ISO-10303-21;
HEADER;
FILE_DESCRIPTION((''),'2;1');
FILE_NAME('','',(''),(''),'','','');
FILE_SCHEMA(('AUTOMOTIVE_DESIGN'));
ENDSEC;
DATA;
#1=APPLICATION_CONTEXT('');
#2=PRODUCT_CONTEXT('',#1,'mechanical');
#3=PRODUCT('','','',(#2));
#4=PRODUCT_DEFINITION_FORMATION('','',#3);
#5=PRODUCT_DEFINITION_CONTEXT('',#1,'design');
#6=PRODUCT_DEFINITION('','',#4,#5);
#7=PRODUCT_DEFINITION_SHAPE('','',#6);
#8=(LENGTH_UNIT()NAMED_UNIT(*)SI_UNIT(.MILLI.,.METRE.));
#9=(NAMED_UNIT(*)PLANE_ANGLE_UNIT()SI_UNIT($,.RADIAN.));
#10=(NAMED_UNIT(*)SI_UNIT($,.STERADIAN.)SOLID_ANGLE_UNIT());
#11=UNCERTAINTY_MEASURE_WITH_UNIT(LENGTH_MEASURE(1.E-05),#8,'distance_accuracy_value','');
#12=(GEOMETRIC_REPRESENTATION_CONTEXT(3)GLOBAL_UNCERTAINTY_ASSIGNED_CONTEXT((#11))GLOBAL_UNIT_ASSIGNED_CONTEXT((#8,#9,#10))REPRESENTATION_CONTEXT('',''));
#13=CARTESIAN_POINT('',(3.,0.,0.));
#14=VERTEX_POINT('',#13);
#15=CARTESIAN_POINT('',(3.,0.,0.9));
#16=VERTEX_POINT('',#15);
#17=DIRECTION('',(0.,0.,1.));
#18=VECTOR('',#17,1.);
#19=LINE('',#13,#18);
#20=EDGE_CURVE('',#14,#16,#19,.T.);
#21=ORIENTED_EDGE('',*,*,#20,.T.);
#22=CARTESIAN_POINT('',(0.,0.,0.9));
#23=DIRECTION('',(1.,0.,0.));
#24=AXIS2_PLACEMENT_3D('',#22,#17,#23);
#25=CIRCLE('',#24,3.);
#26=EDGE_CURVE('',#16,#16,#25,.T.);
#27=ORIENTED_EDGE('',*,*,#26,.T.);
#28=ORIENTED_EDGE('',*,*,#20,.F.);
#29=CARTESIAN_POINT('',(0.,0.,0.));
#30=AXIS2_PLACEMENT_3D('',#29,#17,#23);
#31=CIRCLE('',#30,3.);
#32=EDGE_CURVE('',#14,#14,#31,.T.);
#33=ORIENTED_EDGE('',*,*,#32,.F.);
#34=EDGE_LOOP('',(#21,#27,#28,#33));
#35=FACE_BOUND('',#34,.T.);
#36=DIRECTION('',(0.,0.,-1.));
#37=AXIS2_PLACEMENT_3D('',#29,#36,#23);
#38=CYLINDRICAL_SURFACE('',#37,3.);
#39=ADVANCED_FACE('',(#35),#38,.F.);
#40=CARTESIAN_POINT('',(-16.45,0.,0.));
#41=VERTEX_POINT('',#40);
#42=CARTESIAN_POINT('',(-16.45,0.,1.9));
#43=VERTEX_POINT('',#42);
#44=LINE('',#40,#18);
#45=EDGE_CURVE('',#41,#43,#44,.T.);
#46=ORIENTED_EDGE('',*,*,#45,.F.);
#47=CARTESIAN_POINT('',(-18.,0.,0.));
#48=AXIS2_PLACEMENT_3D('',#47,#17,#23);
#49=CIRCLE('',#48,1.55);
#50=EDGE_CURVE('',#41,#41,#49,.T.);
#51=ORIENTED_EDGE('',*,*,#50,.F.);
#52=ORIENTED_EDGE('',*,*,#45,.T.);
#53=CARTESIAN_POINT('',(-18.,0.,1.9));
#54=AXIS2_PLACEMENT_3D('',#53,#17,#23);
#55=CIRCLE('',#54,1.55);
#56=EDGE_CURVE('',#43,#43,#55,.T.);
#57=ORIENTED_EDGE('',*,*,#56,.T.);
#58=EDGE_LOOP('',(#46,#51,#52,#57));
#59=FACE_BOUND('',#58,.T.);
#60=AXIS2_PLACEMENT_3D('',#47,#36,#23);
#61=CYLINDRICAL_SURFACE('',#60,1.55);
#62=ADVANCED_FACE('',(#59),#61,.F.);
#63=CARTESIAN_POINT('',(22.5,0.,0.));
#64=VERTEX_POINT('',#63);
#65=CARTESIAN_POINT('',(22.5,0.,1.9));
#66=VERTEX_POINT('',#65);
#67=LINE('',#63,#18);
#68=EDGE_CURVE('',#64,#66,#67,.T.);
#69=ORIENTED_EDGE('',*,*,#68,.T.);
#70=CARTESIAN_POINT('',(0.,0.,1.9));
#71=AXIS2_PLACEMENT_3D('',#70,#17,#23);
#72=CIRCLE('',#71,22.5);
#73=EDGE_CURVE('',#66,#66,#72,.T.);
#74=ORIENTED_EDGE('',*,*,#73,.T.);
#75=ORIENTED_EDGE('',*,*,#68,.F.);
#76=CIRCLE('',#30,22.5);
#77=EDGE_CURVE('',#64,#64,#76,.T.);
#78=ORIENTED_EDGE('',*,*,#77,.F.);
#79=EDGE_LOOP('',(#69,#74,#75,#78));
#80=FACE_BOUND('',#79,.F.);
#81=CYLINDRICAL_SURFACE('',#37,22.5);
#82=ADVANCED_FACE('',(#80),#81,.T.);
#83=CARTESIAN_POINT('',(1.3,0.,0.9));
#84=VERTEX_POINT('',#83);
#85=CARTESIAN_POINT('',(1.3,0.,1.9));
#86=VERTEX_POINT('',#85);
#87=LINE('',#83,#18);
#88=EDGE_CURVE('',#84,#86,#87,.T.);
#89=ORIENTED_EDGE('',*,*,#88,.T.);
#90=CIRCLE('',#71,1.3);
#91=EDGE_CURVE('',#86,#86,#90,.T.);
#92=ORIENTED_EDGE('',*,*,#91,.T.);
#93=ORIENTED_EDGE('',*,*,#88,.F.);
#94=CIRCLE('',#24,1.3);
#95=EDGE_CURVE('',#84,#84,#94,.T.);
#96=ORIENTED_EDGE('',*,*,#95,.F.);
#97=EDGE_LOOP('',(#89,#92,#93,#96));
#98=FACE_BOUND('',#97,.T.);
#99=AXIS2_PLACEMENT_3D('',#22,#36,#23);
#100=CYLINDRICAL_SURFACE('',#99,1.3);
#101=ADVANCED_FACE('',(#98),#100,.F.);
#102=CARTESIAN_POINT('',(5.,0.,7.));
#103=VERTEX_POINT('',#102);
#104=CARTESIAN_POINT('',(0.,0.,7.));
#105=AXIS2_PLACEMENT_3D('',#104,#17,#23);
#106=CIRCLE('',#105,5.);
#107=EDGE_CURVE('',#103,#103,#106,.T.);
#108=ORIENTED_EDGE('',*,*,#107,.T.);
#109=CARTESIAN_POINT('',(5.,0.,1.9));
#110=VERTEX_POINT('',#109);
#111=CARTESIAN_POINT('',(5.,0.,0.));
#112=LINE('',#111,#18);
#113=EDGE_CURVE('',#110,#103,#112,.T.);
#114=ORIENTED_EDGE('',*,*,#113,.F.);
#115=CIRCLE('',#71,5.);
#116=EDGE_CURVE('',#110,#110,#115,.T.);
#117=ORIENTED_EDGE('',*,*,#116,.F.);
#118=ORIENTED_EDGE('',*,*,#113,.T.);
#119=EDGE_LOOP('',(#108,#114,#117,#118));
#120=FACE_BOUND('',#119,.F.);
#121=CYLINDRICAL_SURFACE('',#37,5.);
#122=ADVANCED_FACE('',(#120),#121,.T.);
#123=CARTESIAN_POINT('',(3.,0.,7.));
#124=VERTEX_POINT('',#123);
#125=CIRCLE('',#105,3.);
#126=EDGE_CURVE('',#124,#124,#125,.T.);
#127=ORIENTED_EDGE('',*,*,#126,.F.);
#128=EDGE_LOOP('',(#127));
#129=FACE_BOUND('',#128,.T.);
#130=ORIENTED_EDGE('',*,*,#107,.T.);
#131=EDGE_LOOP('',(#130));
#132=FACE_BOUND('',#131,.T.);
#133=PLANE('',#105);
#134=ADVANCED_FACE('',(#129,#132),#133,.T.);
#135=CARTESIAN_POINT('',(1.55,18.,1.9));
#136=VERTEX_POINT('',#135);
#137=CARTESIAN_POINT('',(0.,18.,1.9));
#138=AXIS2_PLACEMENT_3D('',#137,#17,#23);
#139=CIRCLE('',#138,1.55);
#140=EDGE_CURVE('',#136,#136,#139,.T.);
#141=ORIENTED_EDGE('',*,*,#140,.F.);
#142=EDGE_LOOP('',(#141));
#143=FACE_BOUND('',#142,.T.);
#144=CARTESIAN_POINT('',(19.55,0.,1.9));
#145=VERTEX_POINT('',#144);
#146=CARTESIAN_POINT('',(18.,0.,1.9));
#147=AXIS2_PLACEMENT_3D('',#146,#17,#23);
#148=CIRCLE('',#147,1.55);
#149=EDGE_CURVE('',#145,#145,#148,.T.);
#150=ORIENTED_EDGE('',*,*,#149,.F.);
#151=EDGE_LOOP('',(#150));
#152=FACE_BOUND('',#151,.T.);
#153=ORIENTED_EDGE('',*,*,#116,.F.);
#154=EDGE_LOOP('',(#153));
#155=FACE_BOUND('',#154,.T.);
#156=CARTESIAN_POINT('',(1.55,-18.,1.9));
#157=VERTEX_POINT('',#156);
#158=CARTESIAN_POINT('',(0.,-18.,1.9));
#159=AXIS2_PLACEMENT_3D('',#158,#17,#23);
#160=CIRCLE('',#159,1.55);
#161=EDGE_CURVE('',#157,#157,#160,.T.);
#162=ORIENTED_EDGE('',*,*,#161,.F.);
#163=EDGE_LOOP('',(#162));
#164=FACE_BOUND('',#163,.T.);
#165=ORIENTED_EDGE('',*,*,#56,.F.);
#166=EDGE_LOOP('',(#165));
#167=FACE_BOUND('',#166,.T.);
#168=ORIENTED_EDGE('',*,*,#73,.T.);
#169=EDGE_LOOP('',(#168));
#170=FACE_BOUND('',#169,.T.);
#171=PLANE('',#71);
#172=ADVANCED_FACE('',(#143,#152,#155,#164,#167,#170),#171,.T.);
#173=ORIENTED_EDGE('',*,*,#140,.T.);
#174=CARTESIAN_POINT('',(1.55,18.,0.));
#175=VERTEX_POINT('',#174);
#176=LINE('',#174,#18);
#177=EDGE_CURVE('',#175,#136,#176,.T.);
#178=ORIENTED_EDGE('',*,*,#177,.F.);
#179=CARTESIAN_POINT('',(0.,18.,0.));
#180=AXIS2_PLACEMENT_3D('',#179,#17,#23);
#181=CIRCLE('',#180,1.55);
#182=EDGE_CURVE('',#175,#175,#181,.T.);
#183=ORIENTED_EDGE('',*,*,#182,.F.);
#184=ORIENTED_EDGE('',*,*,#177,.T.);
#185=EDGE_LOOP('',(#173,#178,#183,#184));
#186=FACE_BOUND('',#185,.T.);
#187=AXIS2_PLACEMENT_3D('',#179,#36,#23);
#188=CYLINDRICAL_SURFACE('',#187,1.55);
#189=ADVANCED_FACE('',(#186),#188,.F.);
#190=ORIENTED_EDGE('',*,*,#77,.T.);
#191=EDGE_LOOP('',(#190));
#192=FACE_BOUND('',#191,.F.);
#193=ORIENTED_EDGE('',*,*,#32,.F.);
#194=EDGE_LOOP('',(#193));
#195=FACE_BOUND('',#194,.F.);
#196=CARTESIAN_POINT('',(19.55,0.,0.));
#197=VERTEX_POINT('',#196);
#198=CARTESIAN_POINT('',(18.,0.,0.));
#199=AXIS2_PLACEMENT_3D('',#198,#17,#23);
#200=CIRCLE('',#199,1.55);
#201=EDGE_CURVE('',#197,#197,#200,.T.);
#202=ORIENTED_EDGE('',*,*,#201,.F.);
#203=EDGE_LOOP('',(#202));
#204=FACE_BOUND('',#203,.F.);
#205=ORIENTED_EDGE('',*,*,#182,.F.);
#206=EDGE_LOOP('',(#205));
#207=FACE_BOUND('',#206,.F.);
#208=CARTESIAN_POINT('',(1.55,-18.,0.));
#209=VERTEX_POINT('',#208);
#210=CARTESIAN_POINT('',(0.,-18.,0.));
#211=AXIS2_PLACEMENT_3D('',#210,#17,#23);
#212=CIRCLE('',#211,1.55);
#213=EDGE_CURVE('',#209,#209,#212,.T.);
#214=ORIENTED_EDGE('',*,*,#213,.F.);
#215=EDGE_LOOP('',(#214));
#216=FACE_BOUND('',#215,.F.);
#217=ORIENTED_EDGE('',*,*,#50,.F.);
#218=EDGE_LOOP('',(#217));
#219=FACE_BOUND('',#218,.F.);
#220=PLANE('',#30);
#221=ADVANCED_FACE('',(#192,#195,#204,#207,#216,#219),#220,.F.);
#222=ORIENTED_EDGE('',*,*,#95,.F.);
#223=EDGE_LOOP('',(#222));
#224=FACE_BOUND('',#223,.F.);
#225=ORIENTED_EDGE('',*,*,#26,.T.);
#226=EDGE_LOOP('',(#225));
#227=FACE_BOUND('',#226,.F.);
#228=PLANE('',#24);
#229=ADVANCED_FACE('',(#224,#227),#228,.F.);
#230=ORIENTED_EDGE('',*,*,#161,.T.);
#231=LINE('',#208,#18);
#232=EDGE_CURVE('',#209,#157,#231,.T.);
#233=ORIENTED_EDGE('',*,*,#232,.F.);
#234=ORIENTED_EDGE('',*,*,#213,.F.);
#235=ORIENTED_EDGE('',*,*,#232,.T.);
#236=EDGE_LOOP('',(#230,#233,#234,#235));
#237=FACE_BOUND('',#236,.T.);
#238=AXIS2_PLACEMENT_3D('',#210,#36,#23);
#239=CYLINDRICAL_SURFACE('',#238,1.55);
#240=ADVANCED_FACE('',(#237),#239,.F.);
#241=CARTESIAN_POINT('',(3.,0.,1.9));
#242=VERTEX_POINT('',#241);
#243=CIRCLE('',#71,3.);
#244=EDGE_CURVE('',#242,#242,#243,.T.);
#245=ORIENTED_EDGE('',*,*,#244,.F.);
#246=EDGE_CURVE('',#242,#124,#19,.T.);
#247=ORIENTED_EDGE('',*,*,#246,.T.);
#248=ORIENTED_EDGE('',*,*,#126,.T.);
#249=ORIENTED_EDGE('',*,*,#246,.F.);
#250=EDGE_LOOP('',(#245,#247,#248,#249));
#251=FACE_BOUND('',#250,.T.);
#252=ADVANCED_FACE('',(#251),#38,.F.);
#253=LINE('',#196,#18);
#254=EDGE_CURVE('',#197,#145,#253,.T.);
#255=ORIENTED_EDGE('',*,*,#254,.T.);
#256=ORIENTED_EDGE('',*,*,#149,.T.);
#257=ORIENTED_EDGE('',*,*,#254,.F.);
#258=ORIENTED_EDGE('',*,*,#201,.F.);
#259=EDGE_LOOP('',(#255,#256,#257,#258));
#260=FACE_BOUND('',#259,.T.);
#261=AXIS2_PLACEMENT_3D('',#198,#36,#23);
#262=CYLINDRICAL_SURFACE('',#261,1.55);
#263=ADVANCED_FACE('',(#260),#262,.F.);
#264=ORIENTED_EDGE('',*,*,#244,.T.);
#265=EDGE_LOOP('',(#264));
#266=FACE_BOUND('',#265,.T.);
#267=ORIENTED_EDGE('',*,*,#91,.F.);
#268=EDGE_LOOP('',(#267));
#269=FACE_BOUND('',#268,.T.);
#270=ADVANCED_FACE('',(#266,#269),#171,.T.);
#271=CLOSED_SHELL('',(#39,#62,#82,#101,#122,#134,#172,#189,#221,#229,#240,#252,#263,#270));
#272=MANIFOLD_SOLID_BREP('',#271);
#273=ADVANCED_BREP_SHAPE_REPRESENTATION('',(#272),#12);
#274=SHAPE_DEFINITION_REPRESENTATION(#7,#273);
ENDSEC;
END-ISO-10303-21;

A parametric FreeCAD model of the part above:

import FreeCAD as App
import Part
import Sketcher
Q = App.Units.Quantity

doc = App.newDocument("Part")
body = doc.addObject("PartDesign::Body", "Body")

# Sketch on XY plane
sketch1 = body.newObject("Sketcher::SketchObject", "Sketch")
sketch1.AttachmentSupport = (doc.getObject("XY_Plane"), [""])
sketch1.MapMode = "FlatFace"
sketch1.addGeometry(Part.Circle(App.Vector(0, 0, 0), App.Vector(0, 0, 1), 22.5), False)
sketch1.addGeometry(Part.Circle(App.Vector(0, -18, 0), App.Vector(0, 0, 1), 1.55), False)
sketch1.addGeometry(Part.Circle(App.Vector(-18, 0, 0), App.Vector(0, 0, 1), 1.55), False)
sketch1.addGeometry(Part.Circle(App.Vector(0, 0, 0), App.Vector(0, 0, 1), 5), False)
sketch1.addGeometry(Part.Circle(App.Vector(18, 0, 0), App.Vector(0, 0, 1), 1.55), False)
sketch1.addGeometry(Part.Circle(App.Vector(0, 18, 0), App.Vector(0, 0, 1), 1.55), False)
sketch1.addConstraint(Sketcher.Constraint("Coincident", 0, 3, -1, 1))
sketch1.addConstraint(Sketcher.Constraint("Coincident", 3, 3, -1, 1))
sketch1.addConstraint(Sketcher.Constraint("Equal", 1, 2))
sketch1.addConstraint(Sketcher.Constraint("Equal", 2, 4))
sketch1.addConstraint(Sketcher.Constraint("Equal", 4, 5))
sketch1.addConstraint(Sketcher.Constraint("Symmetric", 2, 3, 4, 3, -1, 1))
sketch1.addConstraint(Sketcher.Constraint("Symmetric", 1, 3, 5, 3, -1, 1))
sketch1.addConstraint(Sketcher.Constraint("PointOnObject", 1, 3, -2))
sketch1.addConstraint(Sketcher.Constraint("PointOnObject", 2, 3, -1))
sketch1.addConstraint(Sketcher.Constraint("Diameter", 0, Q("45 mm")))
sketch1.addConstraint(Sketcher.Constraint("Diameter", 3, Q("10 mm")))
sketch1.addConstraint(Sketcher.Constraint("Diameter", 1, Q("3.1 mm")))
sketch1.addConstraint(Sketcher.Constraint("DistanceY", 1, 3, -1, 1, Q("18 mm")))
sketch1.addConstraint(Sketcher.Constraint("DistanceX", 2, 3, -1, 1, Q("18 mm")))
pad1 = body.newObject("PartDesign::Pad", "Pad")
pad1.Profile = sketch1
pad1.Length = 1.9

# Sketch on XY plane
sketch2 = body.newObject("Sketcher::SketchObject", "Sketch001")
sketch2.AttachmentSupport = (doc.getObject("XY_Plane"), [""])
sketch2.MapMode = "FlatFace"
sketch2.addGeometry(Part.Circle(App.Vector(0, 0, 0), App.Vector(0, 0, 1), 5), False)
sketch2.addGeometry(Part.Circle(App.Vector(0, 0, 0), App.Vector(0, 0, 1), 3), False)
sketch2.addConstraint(Sketcher.Constraint("Coincident", 0, 3, -1, 1))
sketch2.addConstraint(Sketcher.Constraint("Coincident", 1, 3, -1, 1))
sketch2.addConstraint(Sketcher.Constraint("Diameter", 0, Q("10 mm")))
sketch2.addConstraint(Sketcher.Constraint("Diameter", 1, Q("6 mm")))
pad2 = body.newObject("PartDesign::Pad", "Pad001")
pad2.Profile = sketch2
pad2.Length = 7

# Sketch on XY plane
sketch3 = body.newObject("Sketcher::SketchObject", "Sketch002")
sketch3.AttachmentSupport = (doc.getObject("XY_Plane"), [""])
sketch3.MapMode = "FlatFace"
sketch3.AttachmentOffset = App.Placement(App.Vector(0, 0, 0.9), App.Rotation())
sketch3.addGeometry(Part.Circle(App.Vector(0, 0, 0), App.Vector(0, 0, 1), 3), False)
sketch3.addGeometry(Part.Circle(App.Vector(0, 0, 0), App.Vector(0, 0, 1), 1.3), False)
sketch3.addConstraint(Sketcher.Constraint("Coincident", 0, 3, -1, 1))
sketch3.addConstraint(Sketcher.Constraint("Coincident", 1, 3, -1, 1))
sketch3.addConstraint(Sketcher.Constraint("Diameter", 0, Q("6 mm")))
sketch3.addConstraint(Sketcher.Constraint("Diameter", 1, Q("2.6 mm")))
pad3 = body.newObject("PartDesign::Pad", "Pad002")
pad3.Profile = sketch3
pad3.Length = 1

doc.recompute()
